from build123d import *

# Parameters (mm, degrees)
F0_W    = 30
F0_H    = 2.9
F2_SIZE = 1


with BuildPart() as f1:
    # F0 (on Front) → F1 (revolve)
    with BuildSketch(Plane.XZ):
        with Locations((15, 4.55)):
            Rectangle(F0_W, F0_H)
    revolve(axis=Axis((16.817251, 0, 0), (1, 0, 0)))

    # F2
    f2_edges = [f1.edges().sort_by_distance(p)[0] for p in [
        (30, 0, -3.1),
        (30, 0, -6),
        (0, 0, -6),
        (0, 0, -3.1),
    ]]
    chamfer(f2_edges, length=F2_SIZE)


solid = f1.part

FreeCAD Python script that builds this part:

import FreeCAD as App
import Part
import Sketcher

V = App.Vector
Q = App.Units.Quantity


def edges_at(feature, points):
    """Names of the edges that pass closest to the given points."""
    edges = feature.Shape.Edges
    near = lambda p: min(range(len(edges)), key=lambda i: edges[i].distToShape(Part.Vertex(*p))[0])
    return sorted({f"Edge{near(p) + 1}" for p in points})


def add_polygon(sketch, points):
    """Adds a closed chain of lines whose ends are joined by coincident constraints."""
    first, n = sketch.GeometryCount, len(points)
    for a, b in zip(points, points[1:] + points[:1]):
        sketch.addGeometry(Part.LineSegment(App.Vector(*a, 0), App.Vector(*b, 0)), False)
    for i in range(n):
        sketch.addConstraint(Sketcher.Constraint("Coincident", first + i, 2, first + (i + 1) % n, 1))

doc = App.newDocument("Part")
body = doc.addObject("PartDesign::Body", "Body")

sketch1 = doc.addObject("Sketcher::SketchObject", "Sketch")
body.addObject(sketch1)
sketch1.AttachmentSupport = (doc.XZ_Plane, [""])
sketch1.MapMode = "FlatFace"
add_polygon(sketch1, [(0, 6), (0, 3.1), (30, 3.1), (30, 6)])
sketch1.addConstraint([
    Sketcher.Constraint("Vertical", 0),
    Sketcher.Constraint("Horizontal", 1),
    Sketcher.Constraint("Vertical", 2),
    Sketcher.Constraint("Horizontal", 3),
    Sketcher.Constraint("PointOnObject", 0, 2, -2),
    Sketcher.Constraint("DistanceX", 1, 1, 1, 2, Q("30 mm")),
    Sketcher.Constraint("DistanceY", 0, 2, 0, 1, Q("2.9 mm")),
    Sketcher.Constraint("DistanceY", -1, 1, 2, 2, Q("6 mm")),
])
revolution = doc.addObject("PartDesign::Revolution", "Revolution")
body.addObject(revolution)
revolution.Profile = sketch1
revolution.ReferenceAxis = (sketch1, ["H_Axis"])
revolution.Angle = 360
doc.recompute()

chamfer = doc.addObject("PartDesign::Chamfer", "Chamfer")
body.addObject(chamfer)
chamfer.Base = (revolution, edges_at(revolution, [
    (30, 0, -3.1),
    (30, 0, -6),
    (0, 0, -6),
    (0, 0, -3.1),
]))
chamfer.Size = 1

doc.recompute()
